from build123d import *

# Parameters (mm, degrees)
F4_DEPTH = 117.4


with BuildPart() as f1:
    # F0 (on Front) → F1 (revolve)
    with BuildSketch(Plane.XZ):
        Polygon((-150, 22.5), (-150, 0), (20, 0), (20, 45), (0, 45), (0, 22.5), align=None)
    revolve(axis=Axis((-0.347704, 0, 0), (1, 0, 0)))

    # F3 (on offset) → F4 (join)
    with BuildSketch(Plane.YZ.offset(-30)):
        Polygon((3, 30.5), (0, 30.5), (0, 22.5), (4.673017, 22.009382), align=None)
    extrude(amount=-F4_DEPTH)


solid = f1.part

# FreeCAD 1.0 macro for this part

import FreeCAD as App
import Part
import Sketcher
Q = App.Units.Quantity

doc = App.newDocument("Part")
body = doc.addObject("PartDesign::Body", "Body")

# Sketch on XZ plane
sketch1 = doc.addObject("Sketcher::SketchObject", "Sketch")
body.addObject(sketch1)
sketch1.AttachmentSupport = (doc.XZ_Plane, [""])
sketch1.MapMode = "FlatFace"
sketch1.addGeometry([
    Part.LineSegment(App.Vector(-150, 22, 0), App.Vector(-150, 0, 0)),  # 0
    Part.LineSegment(App.Vector(-150, 0, 0), App.Vector(20, 0, 0)),  # 1
    Part.LineSegment(App.Vector(20, 0, 0), App.Vector(20, 45, 0)),  # 2
    Part.LineSegment(App.Vector(20, 45, 0), App.Vector(0, 45, 0)),  # 3
    Part.LineSegment(App.Vector(0, 45, 0), App.Vector(0, 22, 0)),  # 4
    Part.LineSegment(App.Vector(0, 22, 0), App.Vector(-150, 22, 0)),  # 5
], False)
sketch1.addConstraint([
    Sketcher.Constraint("Coincident", 0, 2, 1, 1),
    Sketcher.Constraint("Coincident", 1, 2, 2, 1),
    Sketcher.Constraint("Coincident", 2, 2, 3, 1),
    Sketcher.Constraint("Coincident", 3, 2, 4, 1),
    Sketcher.Constraint("Coincident", 4, 2, 5, 1),
    Sketcher.Constraint("Coincident", 5, 2, 0, 1),
    Sketcher.Constraint("Vertical", 0),
    Sketcher.Constraint("Horizontal", 1),
    Sketcher.Constraint("Vertical", 2),
    Sketcher.Constraint("Horizontal", 3),
    Sketcher.Constraint("Vertical", 4),
    Sketcher.Constraint("Horizontal", 5),
    Sketcher.Constraint("PointOnObject", 0, 2, -1),
    Sketcher.Constraint("PointOnObject", 3, 2, -2),
    Sketcher.Constraint("Equal", 0, 4),
    Sketcher.Constraint("DistanceX", 1, 1, 1, 2, Q("170 mm")),
    Sketcher.Constraint("DistanceX", 3, 2, 3, 1, Q("20 mm")),
    Sketcher.Constraint("DistanceY", 2, 1, 2, 2, Q("45 mm")),
])
revolution = doc.addObject("PartDesign::Revolution", "Revolution")
body.addObject(revolution)
revolution.Profile = sketch1
revolution.ReferenceAxis = (sketch1, ["H_Axis"])
revolution.Angle = 360

# Sketch on YZ plane
sketch2 = doc.addObject("Sketcher::SketchObject", "Sketch001")
body.addObject(sketch2)
sketch2.AttachmentSupport = (doc.YZ_Plane, [""])
sketch2.MapMode = "FlatFace"
sketch2.AttachmentOffset = App.Placement(App.Vector(0, 0, -30), App.Rotation())
sketch2.addGeometry([
    Part.LineSegment(App.Vector(3, 30.5, 0), App.Vector(0, 30.5, 0)),
    Part.LineSegment(App.Vector(0, 30.5, 0), App.Vector(0, 22.5, 0)),
    Part.LineSegment(App.Vector(0, 22.5, 0), App.Vector(4.7, 22, 0)),
    Part.LineSegment(App.Vector(4.7, 22, 0), App.Vector(3, 30.5, 0)),
], False)
sketch2.addConstraint([
    Sketcher.Constraint("Coincident", 0, 2, 1, 1),
    Sketcher.Constraint("Coincident", 1, 2, 2, 1),
    Sketcher.Constraint("Coincident", 2, 2, 3, 1),
    Sketcher.Constraint("Coincident", 3, 2, 0, 1),
    Sketcher.Constraint("Horizontal", 0),
    Sketcher.Constraint("Vertical", 1),
    Sketcher.Constraint("PointOnObject", 0, 2, -2),
    Sketcher.Constraint("DistanceX", 0, 2, 0, 1, Q("3 mm")),
    Sketcher.Constraint("DistanceY", 1, 2, 1, 1, Q("8 mm")),
    Sketcher.Constraint("DistanceY", -1, 1, 0, 2, Q("30.5 mm")),
    Sketcher.Constraint("Distance", 2, Q("4.698701 mm")),
    Sketcher.Constraint("DistanceY", -1, 1, 2, 2, Q("22.009382 mm")),
])
pad1 = doc.addObject("PartDesign::Pad", "Pad")
body.addObject(pad1)
pad1.Profile = sketch2
pad1.Length = 117.4
pad1.Reversed = True

doc.recompute()
